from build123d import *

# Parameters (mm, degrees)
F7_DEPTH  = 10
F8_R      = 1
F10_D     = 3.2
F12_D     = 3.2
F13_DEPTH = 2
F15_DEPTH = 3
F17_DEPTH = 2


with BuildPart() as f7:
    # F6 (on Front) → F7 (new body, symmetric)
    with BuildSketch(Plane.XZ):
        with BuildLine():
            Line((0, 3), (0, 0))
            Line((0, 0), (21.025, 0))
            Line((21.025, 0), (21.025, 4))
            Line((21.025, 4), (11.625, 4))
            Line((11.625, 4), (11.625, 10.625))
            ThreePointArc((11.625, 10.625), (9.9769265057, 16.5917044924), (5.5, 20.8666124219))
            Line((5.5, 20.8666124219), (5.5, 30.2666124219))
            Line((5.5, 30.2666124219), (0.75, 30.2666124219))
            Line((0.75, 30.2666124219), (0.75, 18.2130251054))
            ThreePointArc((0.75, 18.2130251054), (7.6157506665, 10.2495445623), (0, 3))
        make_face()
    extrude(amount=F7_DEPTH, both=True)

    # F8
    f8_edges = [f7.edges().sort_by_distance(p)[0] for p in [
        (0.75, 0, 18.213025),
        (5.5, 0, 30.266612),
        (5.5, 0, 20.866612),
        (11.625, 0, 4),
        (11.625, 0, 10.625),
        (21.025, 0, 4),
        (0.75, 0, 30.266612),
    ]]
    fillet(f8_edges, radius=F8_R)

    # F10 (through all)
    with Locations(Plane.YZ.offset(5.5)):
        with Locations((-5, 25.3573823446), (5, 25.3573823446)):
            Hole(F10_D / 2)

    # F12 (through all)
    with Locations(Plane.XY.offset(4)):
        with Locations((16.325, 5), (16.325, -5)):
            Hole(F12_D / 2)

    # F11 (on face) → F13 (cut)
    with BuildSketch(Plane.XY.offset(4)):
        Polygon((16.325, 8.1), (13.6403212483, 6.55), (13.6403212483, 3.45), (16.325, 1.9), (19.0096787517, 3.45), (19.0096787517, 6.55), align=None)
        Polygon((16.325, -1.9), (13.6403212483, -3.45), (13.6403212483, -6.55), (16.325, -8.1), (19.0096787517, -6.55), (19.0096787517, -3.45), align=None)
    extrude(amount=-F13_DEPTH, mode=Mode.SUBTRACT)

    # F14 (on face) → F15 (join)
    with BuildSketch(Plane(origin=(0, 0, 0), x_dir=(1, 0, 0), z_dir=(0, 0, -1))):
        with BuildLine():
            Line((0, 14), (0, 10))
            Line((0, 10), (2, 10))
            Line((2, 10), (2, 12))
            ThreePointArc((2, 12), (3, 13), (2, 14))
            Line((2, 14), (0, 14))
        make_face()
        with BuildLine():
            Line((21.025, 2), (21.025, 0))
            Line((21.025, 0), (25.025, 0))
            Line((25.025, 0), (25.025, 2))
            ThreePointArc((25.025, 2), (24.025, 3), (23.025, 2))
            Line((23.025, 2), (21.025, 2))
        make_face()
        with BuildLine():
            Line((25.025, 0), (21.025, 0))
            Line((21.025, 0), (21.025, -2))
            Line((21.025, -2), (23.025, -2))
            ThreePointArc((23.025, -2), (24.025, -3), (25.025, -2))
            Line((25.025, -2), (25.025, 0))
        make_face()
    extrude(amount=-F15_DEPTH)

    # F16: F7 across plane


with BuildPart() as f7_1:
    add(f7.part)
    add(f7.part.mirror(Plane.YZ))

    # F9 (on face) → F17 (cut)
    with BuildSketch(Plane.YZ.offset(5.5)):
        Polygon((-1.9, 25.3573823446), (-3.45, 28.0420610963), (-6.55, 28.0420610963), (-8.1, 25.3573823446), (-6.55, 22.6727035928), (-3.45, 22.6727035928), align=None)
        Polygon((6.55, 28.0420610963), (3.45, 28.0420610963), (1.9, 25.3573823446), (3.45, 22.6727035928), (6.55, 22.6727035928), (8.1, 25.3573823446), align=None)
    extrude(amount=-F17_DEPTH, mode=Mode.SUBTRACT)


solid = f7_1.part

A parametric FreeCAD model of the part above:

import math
import FreeCAD as App
import Part
import Sketcher
Q = App.Units.Quantity


def edges_at(feature, points):
    """Names of the edges that pass closest to the given points."""
    edges = feature.Shape.Edges
    near = lambda p: min(range(len(edges)), key=lambda i: edges[i].distToShape(Part.Vertex(*p))[0])
    return sorted({f"Edge{near(p) + 1}" for p in points})

doc = App.newDocument("Part")
body = doc.addObject("PartDesign::Body", "Body")

# Sketch on XZ plane
sketch1 = body.newObject("Sketcher::SketchObject", "Sketch")
sketch1.AttachmentSupport = (doc.getObject("XZ_Plane"), [""])
sketch1.MapMode = "FlatFace"
sketch1.addGeometry([
    Part.LineSegment(App.Vector(0, 3, 0), App.Vector(0, 0, 0)),  # 0
    Part.LineSegment(App.Vector(0, 0, 0), App.Vector(21.025, 0, 0)),  # 1
    Part.LineSegment(App.Vector(21.025, 0, 0), App.Vector(21.025, 4, 0)),  # 2
    Part.LineSegment(App.Vector(21.025, 4, 0), App.Vector(11.625, 4, 0)),  # 3
    Part.LineSegment(App.Vector(11.625, 4, 0), App.Vector(11.625, 10.625, 0)),  # 4
    Part.ArcOfCircle(Part.Circle(App.Vector(0, 10.625, 0), App.Vector(0, 0, 1), 11.625), math.radians(0), math.radians(61.763098)),  # 5
    Part.LineSegment(App.Vector(5.5, 20.866612, 0), App.Vector(5.5, 30.266612, 0)),  # 6
    Part.LineSegment(App.Vector(5.5, 30.266612, 0), App.Vector(0.75, 30.266612, 0)),  # 7
    Part.LineSegment(App.Vector(0.75, 30.266612, 0), App.Vector(0.75, 18.213025, 0)),  # 8
    Part.ArcOfCircle(Part.Circle(App.Vector(0, 10.625, 0), App.Vector(0, 0, 1), 7.625), math.radians(-90), math.radians(84.355222)),  # 9
], False)
sketch1.addConstraint([
    Sketcher.Constraint("Coincident", 0, 2, 1, 1),
    Sketcher.Constraint("Coincident", 1, 2, 2, 1),
    Sketcher.Constraint("Coincident", 2, 2, 3, 1),
    Sketcher.Constraint("Coincident", 3, 2, 4, 1),
    Sketcher.Constraint("Tangent", 4, 2, 5, 1),
    Sketcher.Constraint("Coincident", 5, 2, 6, 1),
    Sketcher.Constraint("Coincident", 6, 2, 7, 1),
    Sketcher.Constraint("Coincident", 7, 2, 8, 1),
    Sketcher.Constraint("Coincident", 8, 2, 9, 2),
    Sketcher.Constraint("Coincident", 9, 1, 0, 1),
    Sketcher.Constraint("Vertical", 0),
    Sketcher.Constraint("Horizontal", 1),
    Sketcher.Constraint("Vertical", 2),
    Sketcher.Constraint("Horizontal", 3),
    Sketcher.Constraint("Vertical", 4),
    Sketcher.Constraint("Vertical", 6),
    Sketcher.Constraint("Horizontal", 7),
    Sketcher.Constraint("Vertical", 8),
    Sketcher.Constraint("Coincident", 0, 2, -1, 1),
    Sketcher.Constraint("Coincident", 9, 3, 5, 3),
    Sketcher.Constraint("PointOnObject", 5, 3, -2),
    Sketcher.Constraint("Equal", 3, 6),
    Sketcher.Constraint("DistanceY", 0, 2, 0, 1, Q("3 mm")),
    Sketcher.Constraint("DistanceY", 2, 1, 2, 2, Q("4 mm")),
    Sketcher.Constraint("DistanceX", 3, 2, 3, 1, Q("9.4 mm")),
    Sketcher.Constraint("Radius", 5, Q("11.625 mm")),
    Sketcher.Constraint("Radius", 9, Q("7.625 mm")),
    Sketcher.Constraint("DistanceX", 7, 2, 7, 1, Q("4.75 mm")),
    Sketcher.Constraint("DistanceX", -1, 1, 5, 2, Q("5.5 mm")),
])
pad1 = body.newObject("PartDesign::Pad", "Pad")
pad1.Profile = sketch1
pad1.Length = 20
pad1.Midplane = True
doc.recompute()

fillet = body.newObject("PartDesign::Fillet", "Fillet")
fillet.Base = (pad1, edges_at(pad1, [
    (0.75, 0, 18.213),
    (5.5, 0, 30.267),
    (5.5, 0, 20.867),
    (11.625, 0, 4),
    (11.625, 0, 10.625),
    (21.025, 0, 4),
    (0.75, 0, 30.267),
]))
fillet.Radius = 1

# Sketch on YZ plane
sketch2 = body.newObject("Sketcher::SketchObject", "Sketch001")
sketch2.AttachmentSupport = (doc.getObject("YZ_Plane"), [""])
sketch2.MapMode = "FlatFace"
sketch2.AttachmentOffset = App.Placement(App.Vector(0, 0, 5.5), App.Rotation())
sketch2.addGeometry([
    Part.Circle(App.Vector(-5, 25.357382, 0), App.Vector(0, 0, 1), 1.6),
    Part.Circle(App.Vector(5, 25.357382, 0), App.Vector(0, 0, 1), 1.6),
], False)
sketch2.addConstraint([
    Sketcher.Constraint("Equal", 0, 1),
    Sketcher.Constraint("Symmetric", 0, 3, 1, 3, -2),
    Sketcher.Constraint("Diameter", 0, Q("3.2 mm")),
    Sketcher.Constraint("DistanceX", 0, 3, -1, 1, Q("5 mm")),
    Sketcher.Constraint("DistanceY", -1, 1, 0, 3, Q("25.357382 mm")),
])
doc.recompute()
hole = body.newObject("PartDesign::Hole", "Hole")
hole.Profile = sketch2
hole.ThreadType = "None"
hole.Diameter = 3.2
hole.DepthType = "ThroughAll"

# Sketch on XY plane
sketch3 = body.newObject("Sketcher::SketchObject", "Sketch002")
sketch3.AttachmentSupport = (doc.getObject("XY_Plane"), [""])
sketch3.MapMode = "FlatFace"
sketch3.AttachmentOffset = App.Placement(App.Vector(0, 0, 4), App.Rotation())
sketch3.addGeometry([
    Part.Circle(App.Vector(16.325, 5, 0), App.Vector(0, 0, 1), 1.6),
    Part.Circle(App.Vector(16.325, -5, 0), App.Vector(0, 0, 1), 1.6),
], False)
sketch3.addConstraint([
    Sketcher.Constraint("Equal", 0, 1),
    Sketcher.Constraint("Symmetric", 0, 3, 1, 3, -1),
    Sketcher.Constraint("Diameter", 0, Q("3.2 mm")),
    Sketcher.Constraint("DistanceY", -1, 1, 0, 3, Q("5 mm")),
    Sketcher.Constraint("DistanceX", -1, 1, 0, 3, Q("16.325 mm")),
])
doc.recompute()
hole2 = body.newObject("PartDesign::Hole", "Hole001")
hole2.Profile = sketch3
hole2.ThreadType = "None"
hole2.Diameter = 3.2
hole2.DepthType = "ThroughAll"

# Sketch on XY plane
sketch4 = body.newObject("Sketcher::SketchObject", "Sketch003")
sketch4.AttachmentSupport = (doc.getObject("XY_Plane"), [""])
sketch4.MapMode = "FlatFace"
sketch4.AttachmentOffset = App.Placement(App.Vector(0, 0, 4), App.Rotation())
sketch4.addGeometry([
    Part.LineSegment(App.Vector(16.325, 8.1, 0), App.Vector(13.640321, 6.55, 0)),  # 0
    Part.LineSegment(App.Vector(13.640321, 6.55, 0), App.Vector(13.640321, 3.45, 0)),  # 1
    Part.LineSegment(App.Vector(13.640321, 3.45, 0), App.Vector(16.325, 1.9, 0)),  # 2
    Part.LineSegment(App.Vector(16.325, 1.9, 0), App.Vector(19.009679, 3.45, 0)),  # 3
    Part.LineSegment(App.Vector(19.009679, 3.45, 0), App.Vector(19.009679, 6.55, 0)),  # 4
    Part.LineSegment(App.Vector(19.009679, 6.55, 0), App.Vector(16.325, 8.1, 0)),  # 5
    Part.LineSegment(App.Vector(16.325, -1.9, 0), App.Vector(13.640321, -3.45, 0)),  # 6
    Part.LineSegment(App.Vector(13.640321, -3.45, 0), App.Vector(13.640321, -6.55, 0)),  # 7
    Part.LineSegment(App.Vector(13.640321, -6.55, 0), App.Vector(16.325, -8.1, 0)),  # 8
    Part.LineSegment(App.Vector(16.325, -8.1, 0), App.Vector(19.009679, -6.55, 0)),  # 9
    Part.LineSegment(App.Vector(19.009679, -6.55, 0), App.Vector(19.009679, -3.45, 0)),  # 10
    Part.LineSegment(App.Vector(19.009679, -3.45, 0), App.Vector(16.325, -1.9, 0)),  # 11
], False)
sketch4.addConstraint([
    Sketcher.Constraint("Coincident", 0, 2, 1, 1),
    Sketcher.Constraint("Coincident", 1, 2, 2, 1),
    Sketcher.Constraint("Coincident", 2, 2, 3, 1),
    Sketcher.Constraint("Coincident", 3, 2, 4, 1),
    Sketcher.Constraint("Coincident", 4, 2, 5, 1),
    Sketcher.Constraint("Coincident", 5, 2, 0, 1),
    Sketcher.Constraint("Coincident", 6, 2, 7, 1),
    Sketcher.Constraint("Coincident", 7, 2, 8, 1),
    Sketcher.Constraint("Coincident", 8, 2, 9, 1),
    Sketcher.Constraint("Coincident", 9, 2, 10, 1),
    Sketcher.Constraint("Coincident", 10, 2, 11, 1),
    Sketcher.Constraint("Coincident", 11, 2, 6, 1),
    Sketcher.Constraint("Vertical", 1),
    Sketcher.Constraint("Vertical", 4),
    Sketcher.Constraint("Vertical", 7),
    Sketcher.Constraint("Vertical", 10),
    Sketcher.Constraint("Symmetric", 1, 2, 6, 2, -1),
    Sketcher.Constraint("Symmetric", 5, 2, 8, 2, -1),
    Sketcher.Constraint("Symmetric", 4, 2, 9, 2, -1),
    Sketcher.Constraint("Symmetric", 2, 2, 11, 2, -1),
    Sketcher.Constraint("Parallel", 0, 3),
    Sketcher.Constraint("Parallel", 2, 5),
    Sketcher.Constraint("Parallel", 3, 6),
    Sketcher.Constraint("Parallel", 5, 8),
    Sketcher.Constraint("Parallel", 8, 11),
    Sketcher.Constraint("Horizontal", 1, 2, 3, 2),
    Sketcher.Constraint("Horizontal", 0, 2, 4, 2),
    Sketcher.Constraint("Angle", 0, Q("-150 deg")),
    Sketcher.Constraint("DistanceY", 1, 2, 1, 1, Q("3.1 mm")),
    Sketcher.Constraint("DistanceY", 6, 2, 0, 2, Q("10 mm")),
    Sketcher.Constraint("Distance", 0, Q("3.1 mm")),
    Sketcher.Constraint("DistanceX", -1, 1, 2, 2, Q("16.325 mm")),
])
pocket1 = body.newObject("PartDesign::Pocket", "Pocket")
pocket1.Profile = sketch4
pocket1.Length = 2

# Sketch on XY plane
sketch5 = body.newObject("Sketcher::SketchObject", "Sketch004")
sketch5.AttachmentSupport = (doc.getObject("XY_Plane"), [""])
sketch5.MapMode = "FlatFace"
sketch5.addGeometry([
    Part.LineSegment(App.Vector(0, -14, 0), App.Vector(0, -10, 0)),  # 0
    Part.LineSegment(App.Vector(0, -10, 0), App.Vector(2, -10, 0)),  # 1
    Part.LineSegment(App.Vector(2, -10, 0), App.Vector(2, -12, 0)),  # 2
    Part.ArcOfCircle(Part.Circle(App.Vector(2, -13, 0), App.Vector(0, 0, 1), 1), math.radians(-90), math.radians(90)),  # 3
    Part.LineSegment(App.Vector(2, -14, 0), App.Vector(0, -14, 0)),  # 4
    Part.LineSegment(App.Vector(21.025, -2, 0), App.Vector(21.025, 2, 0)),  # 5
    Part.LineSegment(App.Vector(21.025, 2, 0), App.Vector(23.025, 2, 0)),  # 6
    Part.ArcOfCircle(Part.Circle(App.Vector(24.025, 2, 0), App.Vector(0, 0, 1), 1), math.radians(0), math.radians(180)),  # 7
    Part.LineSegment(App.Vector(25.025, 2, 0), App.Vector(25.025, -2, 0)),  # 8
    Part.ArcOfCircle(Part.Circle(App.Vector(24.025, -2, 0), App.Vector(0, 0, 1), 1), math.radians(180), math.radians(360)),  # 9
    Part.LineSegment(App.Vector(23.025, -2, 0), App.Vector(21.025, -2, 0)),  # 10
], False)
sketch5.addConstraint([
    Sketcher.Constraint("Coincident", 0, 2, 1, 1),
    Sketcher.Constraint("Coincident", 1, 2, 2, 1),
    Sketcher.Constraint("Coincident", 2, 2, 3, 2),
    Sketcher.Constraint("Tangent", 3, 1, 4, 1),
    Sketcher.Constraint("Coincident", 4, 2, 0, 1),
    Sketcher.Constraint("Coincident", 5, 2, 6, 1),
    Sketcher.Constraint("Coincident", 6, 2, 7, 2),
    Sketcher.Constraint("Tangent", 7, 1, 8, 1),
    Sketcher.Constraint("Tangent", 8, 2, 9, 2),
    Sketcher.Constraint("Coincident", 9, 1, 10, 1),
    Sketcher.Constraint("Coincident", 10, 2, 5, 1),
    Sketcher.Constraint("Vertical", 0),
    Sketcher.Constraint("Horizontal", 1),
    Sketcher.Constraint("Vertical", 2),
    Sketcher.Constraint("Horizontal", 4),
    Sketcher.Constraint("Vertical", 5),
    Sketcher.Constraint("Horizontal", 6),
    Sketcher.Constraint("Vertical", 8),
    Sketcher.Constraint("Horizontal", 10),
    Sketcher.Constraint("Equal", 3, 7),
    Sketcher.Constraint("Equal", 7, 9),
    Sketcher.Constraint("PointOnObject", 0, 2, -2),
    Sketcher.Constraint("Horizontal", 7, 3, 5, 2),
    Sketcher.Constraint("Horizontal", 8, 2, 9, 1),
    Sketcher.Constraint("Vertical", 3, 3, 1, 2),
    Sketcher.Constraint("Equal", 4, 6),
    Sketcher.Constraint("Equal", 10, 2),
    Sketcher.Constraint("Equal", 0, 5),
    Sketcher.Constraint("Radius", 3, Q("1 mm")),
    Sketcher.Constraint("DistanceX", 1, 1, 1, 2, Q("2 mm")),
    Sketcher.Constraint("DistanceY", 3, 3, -1, 1, Q("13 mm")),
    Sketcher.Constraint("DistanceY", -1, 1, 7, 3, Q("2 mm")),
    Sketcher.Constraint("DistanceX", -1, 1, 7, 3, Q("24.025 mm")),
])
pad2 = body.newObject("PartDesign::Pad", "Pad001")
pad2.Profile = sketch5
pad2.Length = 3
body2 = doc.addObject("PartDesign::Body", "Body001")
doc.recompute()

body2.BaseFeature = body
doc.recompute()

mirroring = doc.addObject("Part::Mirroring", "Mirroring")
mirroring.Source = body
mirroring.Base = App.Vector(0, 0, 0)
mirroring.Normal = App.Vector(1, 0, 0)
body3 = doc.addObject("PartDesign::Body", "Body002")
body3.BaseFeature = mirroring
boolean = body2.newObject("PartDesign::Boolean", "Boolean")
boolean.Type = "Fuse"
boolean.addObjects([body3])
doc.recompute()

# Sketch on YZ plane
sketch6 = body2.newObject("Sketcher::SketchObject", "Sketch005")
sketch6.AttachmentSupport = (doc.getObject("YZ_Plane001"), [""])
sketch6.MapMode = "FlatFace"
sketch6.AttachmentOffset = App.Placement(App.Vector(0, 0, 5.5), App.Rotation())
sketch6.addGeometry([
    Part.LineSegment(App.Vector(-1.9, 25.357382, 0), App.Vector(-3.45, 28.042061, 0)),  # 0
    Part.LineSegment(App.Vector(-3.45, 28.042061, 0), App.Vector(-6.55, 28.042061, 0)),  # 1
    Part.LineSegment(App.Vector(-6.55, 28.042061, 0), App.Vector(-8.1, 25.357382, 0)),  # 2
    Part.LineSegment(App.Vector(-8.1, 25.357382, 0), App.Vector(-6.55, 22.672704, 0)),  # 3
    Part.LineSegment(App.Vector(-6.55, 22.672704, 0), App.Vector(-3.45, 22.672704, 0)),  # 4
    Part.LineSegment(App.Vector(-3.45, 22.672704, 0), App.Vector(-1.9, 25.357382, 0)),  # 5
    Part.LineSegment(App.Vector(6.55, 28.042061, 0), App.Vector(3.45, 28.042061, 0)),  # 6
    Part.LineSegment(App.Vector(3.45, 28.042061, 0), App.Vector(1.9, 25.357382, 0)),  # 7
    Part.LineSegment(App.Vector(1.9, 25.357382, 0), App.Vector(3.45, 22.672704, 0)),  # 8
    Part.LineSegment(App.Vector(3.45, 22.672704, 0), App.Vector(6.55, 22.672704, 0)),  # 9
    Part.LineSegment(App.Vector(6.55, 22.672704, 0), App.Vector(8.1, 25.357382, 0)),  # 10
    Part.LineSegment(App.Vector(8.1, 25.357382, 0), App.Vector(6.55, 28.042061, 0)),  # 11
], False)
sketch6.addConstraint([
    Sketcher.Constraint("Coincident", 0, 2, 1, 1),
    Sketcher.Constraint("Coincident", 1, 2, 2, 1),
    Sketcher.Constraint("Coincident", 2, 2, 3, 1),
    Sketcher.Constraint("Coincident", 3, 2, 4, 1),
    Sketcher.Constraint("Coincident", 4, 2, 5, 1),
    Sketcher.Constraint("Coincident", 5, 2, 0, 1),
    Sketcher.Constraint("Coincident", 6, 2, 7, 1),
    Sketcher.Constraint("Coincident", 7, 2, 8, 1),
    Sketcher.Constraint("Coincident", 8, 2, 9, 1),
    Sketcher.Constraint("Coincident", 9, 2, 10, 1),
    Sketcher.Constraint("Coincident", 10, 2, 11, 1),
    Sketcher.Constraint("Coincident", 11, 2, 6, 1),
    Sketcher.Constraint("Horizontal", 1),
    Sketcher.Constraint("Horizontal", 4),
    Sketcher.Constraint("Horizontal", 6),
    Sketcher.Constraint("Horizontal", 9),
    Sketcher.Constraint("Symmetric", 0, 2, 6, 2, -2),
    Sketcher.Constraint("Symmetric", 5, 2, 7, 2, -2),
    Sketcher.Constraint("Symmetric", 4, 2, 8, 2, -2),
    Sketcher.Constraint("Symmetric", 2, 2, 10, 2, -2),
    Sketcher.Constraint("Parallel", 0, 3),
    Sketcher.Constraint("Parallel", 2, 5),
    Sketcher.Constraint("Parallel", 5, 7),
    Sketcher.Constraint("Parallel", 7, 10),
    Sketcher.Constraint("Parallel", 8, 11),
    Sketcher.Constraint("Horizontal", 2, 2, 5, 2),
    Sketcher.Constraint("Vertical", 1, 2, 3, 2),
    Sketcher.Constraint("Angle", 0, Q("120 deg")),
    Sketcher.Constraint("DistanceX", 1, 2, 1, 1, Q("3.1 mm")),
    Sketcher.Constraint("DistanceX", 1, 2, 6, 2, Q("10 mm")),
    Sketcher.Constraint("Distance", 0, Q("3.1 mm")),
    Sketcher.Constraint("DistanceY", -1, 1, 0, 2, Q("28.042061 mm")),
])
pocket2 = body2.newObject("PartDesign::Pocket", "Pocket001")
pocket2.Profile = sketch6
pocket2.Length = 2
mirroring.Visibility = False

doc.recompute()
